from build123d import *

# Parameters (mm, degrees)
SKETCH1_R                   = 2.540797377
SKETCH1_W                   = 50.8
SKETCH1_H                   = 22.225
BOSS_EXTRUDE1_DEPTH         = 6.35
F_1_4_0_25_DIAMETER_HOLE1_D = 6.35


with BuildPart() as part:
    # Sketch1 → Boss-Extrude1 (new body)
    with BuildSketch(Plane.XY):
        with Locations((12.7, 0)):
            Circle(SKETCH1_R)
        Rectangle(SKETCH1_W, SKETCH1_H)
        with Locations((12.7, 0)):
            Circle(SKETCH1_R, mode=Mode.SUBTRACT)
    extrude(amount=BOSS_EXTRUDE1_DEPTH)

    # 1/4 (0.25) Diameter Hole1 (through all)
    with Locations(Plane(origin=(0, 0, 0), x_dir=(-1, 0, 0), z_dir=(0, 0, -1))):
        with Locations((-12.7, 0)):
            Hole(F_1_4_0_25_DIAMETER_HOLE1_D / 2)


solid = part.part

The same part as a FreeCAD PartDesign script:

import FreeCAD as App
import Part
import Sketcher
Q = App.Units.Quantity

doc = App.newDocument("Part")
body = doc.addObject("PartDesign::Body", "Body")

# Sketch on XY plane
sketch1 = doc.addObject("Sketcher::SketchObject", "Sketch")
body.addObject(sketch1)
sketch1.AttachmentSupport = (doc.XY_Plane, [""])
sketch1.MapMode = "FlatFace"
sketch1.addGeometry([
    Part.LineSegment(App.Vector(-25.4, 11.1, 0), App.Vector(-25.4, -11.1, 0)),  # 0
    Part.LineSegment(App.Vector(-25.4, -11.1, 0), App.Vector(25.4, -11.1, 0)),  # 1
    Part.LineSegment(App.Vector(25.4, -11.1, 0), App.Vector(25.4, 11.1, 0)),  # 2
    Part.LineSegment(App.Vector(25.4, 11.1, 0), App.Vector(-25.4, 11.1, 0)),  # 3
    Part.Circle(App.Vector(12.7, 0, 0), App.Vector(0, 0, 1), 2.5),  # 4
], False)
sketch1.addConstraint([
    Sketcher.Constraint("Coincident", 0, 2, 1, 1),
    Sketcher.Constraint("Coincident", 1, 2, 2, 1),
    Sketcher.Constraint("Coincident", 2, 2, 3, 1),
    Sketcher.Constraint("Coincident", 3, 2, 0, 1),
    Sketcher.Constraint("Vertical", 0),
    Sketcher.Constraint("Horizontal", 1),
    Sketcher.Constraint("Vertical", 2),
    Sketcher.Constraint("Horizontal", 3),
    Sketcher.Constraint("Symmetric", 0, 2, 2, 2, -1, 1),
    Sketcher.Constraint("PointOnObject", 4, 3, -1),
    Sketcher.Constraint("DistanceX", 1, 1, 1, 2, Q("2 in")),
    Sketcher.Constraint("DistanceX", -1, 1, 4, 3, Q("0.5 in")),
    Sketcher.Constraint("DistanceY", 0, 2, 0, 1, Q("0.875 in")),
    Sketcher.Constraint("Diameter", 4, 5.081595),
])
pad1 = doc.addObject("PartDesign::Pad", "Pad")
body.addObject(pad1)
pad1.Profile = sketch1
pad1.Length = Q("0.25 in")

# Sketch on XY plane
sketch2 = doc.addObject("Sketcher::SketchObject", "Sketch001")
body.addObject(sketch2)
sketch2.AttachmentSupport = (doc.XY_Plane, [""])
sketch2.MapMode = "FlatFace"
sketch2.addGeometry(Part.Circle(App.Vector(12.7, 0, 0), App.Vector(0, 0, 1), 3.2), False)
sketch2.addConstraint([
    Sketcher.Constraint("PointOnObject", 0, 3, -1),
    Sketcher.Constraint("Diameter", 0, Q("0.25 in")),
    Sketcher.Constraint("DistanceX", -1, 1, 0, 3, Q("0.5 in")),
])
doc.recompute()
hole = doc.addObject("PartDesign::Hole", "Hole")
body.addObject(hole)
hole.Profile = sketch2
hole.ThreadType = "None"
hole.Diameter = Q("0.25 in")
hole.DepthType = "ThroughAll"
hole.Reversed = True

doc.recompute()
